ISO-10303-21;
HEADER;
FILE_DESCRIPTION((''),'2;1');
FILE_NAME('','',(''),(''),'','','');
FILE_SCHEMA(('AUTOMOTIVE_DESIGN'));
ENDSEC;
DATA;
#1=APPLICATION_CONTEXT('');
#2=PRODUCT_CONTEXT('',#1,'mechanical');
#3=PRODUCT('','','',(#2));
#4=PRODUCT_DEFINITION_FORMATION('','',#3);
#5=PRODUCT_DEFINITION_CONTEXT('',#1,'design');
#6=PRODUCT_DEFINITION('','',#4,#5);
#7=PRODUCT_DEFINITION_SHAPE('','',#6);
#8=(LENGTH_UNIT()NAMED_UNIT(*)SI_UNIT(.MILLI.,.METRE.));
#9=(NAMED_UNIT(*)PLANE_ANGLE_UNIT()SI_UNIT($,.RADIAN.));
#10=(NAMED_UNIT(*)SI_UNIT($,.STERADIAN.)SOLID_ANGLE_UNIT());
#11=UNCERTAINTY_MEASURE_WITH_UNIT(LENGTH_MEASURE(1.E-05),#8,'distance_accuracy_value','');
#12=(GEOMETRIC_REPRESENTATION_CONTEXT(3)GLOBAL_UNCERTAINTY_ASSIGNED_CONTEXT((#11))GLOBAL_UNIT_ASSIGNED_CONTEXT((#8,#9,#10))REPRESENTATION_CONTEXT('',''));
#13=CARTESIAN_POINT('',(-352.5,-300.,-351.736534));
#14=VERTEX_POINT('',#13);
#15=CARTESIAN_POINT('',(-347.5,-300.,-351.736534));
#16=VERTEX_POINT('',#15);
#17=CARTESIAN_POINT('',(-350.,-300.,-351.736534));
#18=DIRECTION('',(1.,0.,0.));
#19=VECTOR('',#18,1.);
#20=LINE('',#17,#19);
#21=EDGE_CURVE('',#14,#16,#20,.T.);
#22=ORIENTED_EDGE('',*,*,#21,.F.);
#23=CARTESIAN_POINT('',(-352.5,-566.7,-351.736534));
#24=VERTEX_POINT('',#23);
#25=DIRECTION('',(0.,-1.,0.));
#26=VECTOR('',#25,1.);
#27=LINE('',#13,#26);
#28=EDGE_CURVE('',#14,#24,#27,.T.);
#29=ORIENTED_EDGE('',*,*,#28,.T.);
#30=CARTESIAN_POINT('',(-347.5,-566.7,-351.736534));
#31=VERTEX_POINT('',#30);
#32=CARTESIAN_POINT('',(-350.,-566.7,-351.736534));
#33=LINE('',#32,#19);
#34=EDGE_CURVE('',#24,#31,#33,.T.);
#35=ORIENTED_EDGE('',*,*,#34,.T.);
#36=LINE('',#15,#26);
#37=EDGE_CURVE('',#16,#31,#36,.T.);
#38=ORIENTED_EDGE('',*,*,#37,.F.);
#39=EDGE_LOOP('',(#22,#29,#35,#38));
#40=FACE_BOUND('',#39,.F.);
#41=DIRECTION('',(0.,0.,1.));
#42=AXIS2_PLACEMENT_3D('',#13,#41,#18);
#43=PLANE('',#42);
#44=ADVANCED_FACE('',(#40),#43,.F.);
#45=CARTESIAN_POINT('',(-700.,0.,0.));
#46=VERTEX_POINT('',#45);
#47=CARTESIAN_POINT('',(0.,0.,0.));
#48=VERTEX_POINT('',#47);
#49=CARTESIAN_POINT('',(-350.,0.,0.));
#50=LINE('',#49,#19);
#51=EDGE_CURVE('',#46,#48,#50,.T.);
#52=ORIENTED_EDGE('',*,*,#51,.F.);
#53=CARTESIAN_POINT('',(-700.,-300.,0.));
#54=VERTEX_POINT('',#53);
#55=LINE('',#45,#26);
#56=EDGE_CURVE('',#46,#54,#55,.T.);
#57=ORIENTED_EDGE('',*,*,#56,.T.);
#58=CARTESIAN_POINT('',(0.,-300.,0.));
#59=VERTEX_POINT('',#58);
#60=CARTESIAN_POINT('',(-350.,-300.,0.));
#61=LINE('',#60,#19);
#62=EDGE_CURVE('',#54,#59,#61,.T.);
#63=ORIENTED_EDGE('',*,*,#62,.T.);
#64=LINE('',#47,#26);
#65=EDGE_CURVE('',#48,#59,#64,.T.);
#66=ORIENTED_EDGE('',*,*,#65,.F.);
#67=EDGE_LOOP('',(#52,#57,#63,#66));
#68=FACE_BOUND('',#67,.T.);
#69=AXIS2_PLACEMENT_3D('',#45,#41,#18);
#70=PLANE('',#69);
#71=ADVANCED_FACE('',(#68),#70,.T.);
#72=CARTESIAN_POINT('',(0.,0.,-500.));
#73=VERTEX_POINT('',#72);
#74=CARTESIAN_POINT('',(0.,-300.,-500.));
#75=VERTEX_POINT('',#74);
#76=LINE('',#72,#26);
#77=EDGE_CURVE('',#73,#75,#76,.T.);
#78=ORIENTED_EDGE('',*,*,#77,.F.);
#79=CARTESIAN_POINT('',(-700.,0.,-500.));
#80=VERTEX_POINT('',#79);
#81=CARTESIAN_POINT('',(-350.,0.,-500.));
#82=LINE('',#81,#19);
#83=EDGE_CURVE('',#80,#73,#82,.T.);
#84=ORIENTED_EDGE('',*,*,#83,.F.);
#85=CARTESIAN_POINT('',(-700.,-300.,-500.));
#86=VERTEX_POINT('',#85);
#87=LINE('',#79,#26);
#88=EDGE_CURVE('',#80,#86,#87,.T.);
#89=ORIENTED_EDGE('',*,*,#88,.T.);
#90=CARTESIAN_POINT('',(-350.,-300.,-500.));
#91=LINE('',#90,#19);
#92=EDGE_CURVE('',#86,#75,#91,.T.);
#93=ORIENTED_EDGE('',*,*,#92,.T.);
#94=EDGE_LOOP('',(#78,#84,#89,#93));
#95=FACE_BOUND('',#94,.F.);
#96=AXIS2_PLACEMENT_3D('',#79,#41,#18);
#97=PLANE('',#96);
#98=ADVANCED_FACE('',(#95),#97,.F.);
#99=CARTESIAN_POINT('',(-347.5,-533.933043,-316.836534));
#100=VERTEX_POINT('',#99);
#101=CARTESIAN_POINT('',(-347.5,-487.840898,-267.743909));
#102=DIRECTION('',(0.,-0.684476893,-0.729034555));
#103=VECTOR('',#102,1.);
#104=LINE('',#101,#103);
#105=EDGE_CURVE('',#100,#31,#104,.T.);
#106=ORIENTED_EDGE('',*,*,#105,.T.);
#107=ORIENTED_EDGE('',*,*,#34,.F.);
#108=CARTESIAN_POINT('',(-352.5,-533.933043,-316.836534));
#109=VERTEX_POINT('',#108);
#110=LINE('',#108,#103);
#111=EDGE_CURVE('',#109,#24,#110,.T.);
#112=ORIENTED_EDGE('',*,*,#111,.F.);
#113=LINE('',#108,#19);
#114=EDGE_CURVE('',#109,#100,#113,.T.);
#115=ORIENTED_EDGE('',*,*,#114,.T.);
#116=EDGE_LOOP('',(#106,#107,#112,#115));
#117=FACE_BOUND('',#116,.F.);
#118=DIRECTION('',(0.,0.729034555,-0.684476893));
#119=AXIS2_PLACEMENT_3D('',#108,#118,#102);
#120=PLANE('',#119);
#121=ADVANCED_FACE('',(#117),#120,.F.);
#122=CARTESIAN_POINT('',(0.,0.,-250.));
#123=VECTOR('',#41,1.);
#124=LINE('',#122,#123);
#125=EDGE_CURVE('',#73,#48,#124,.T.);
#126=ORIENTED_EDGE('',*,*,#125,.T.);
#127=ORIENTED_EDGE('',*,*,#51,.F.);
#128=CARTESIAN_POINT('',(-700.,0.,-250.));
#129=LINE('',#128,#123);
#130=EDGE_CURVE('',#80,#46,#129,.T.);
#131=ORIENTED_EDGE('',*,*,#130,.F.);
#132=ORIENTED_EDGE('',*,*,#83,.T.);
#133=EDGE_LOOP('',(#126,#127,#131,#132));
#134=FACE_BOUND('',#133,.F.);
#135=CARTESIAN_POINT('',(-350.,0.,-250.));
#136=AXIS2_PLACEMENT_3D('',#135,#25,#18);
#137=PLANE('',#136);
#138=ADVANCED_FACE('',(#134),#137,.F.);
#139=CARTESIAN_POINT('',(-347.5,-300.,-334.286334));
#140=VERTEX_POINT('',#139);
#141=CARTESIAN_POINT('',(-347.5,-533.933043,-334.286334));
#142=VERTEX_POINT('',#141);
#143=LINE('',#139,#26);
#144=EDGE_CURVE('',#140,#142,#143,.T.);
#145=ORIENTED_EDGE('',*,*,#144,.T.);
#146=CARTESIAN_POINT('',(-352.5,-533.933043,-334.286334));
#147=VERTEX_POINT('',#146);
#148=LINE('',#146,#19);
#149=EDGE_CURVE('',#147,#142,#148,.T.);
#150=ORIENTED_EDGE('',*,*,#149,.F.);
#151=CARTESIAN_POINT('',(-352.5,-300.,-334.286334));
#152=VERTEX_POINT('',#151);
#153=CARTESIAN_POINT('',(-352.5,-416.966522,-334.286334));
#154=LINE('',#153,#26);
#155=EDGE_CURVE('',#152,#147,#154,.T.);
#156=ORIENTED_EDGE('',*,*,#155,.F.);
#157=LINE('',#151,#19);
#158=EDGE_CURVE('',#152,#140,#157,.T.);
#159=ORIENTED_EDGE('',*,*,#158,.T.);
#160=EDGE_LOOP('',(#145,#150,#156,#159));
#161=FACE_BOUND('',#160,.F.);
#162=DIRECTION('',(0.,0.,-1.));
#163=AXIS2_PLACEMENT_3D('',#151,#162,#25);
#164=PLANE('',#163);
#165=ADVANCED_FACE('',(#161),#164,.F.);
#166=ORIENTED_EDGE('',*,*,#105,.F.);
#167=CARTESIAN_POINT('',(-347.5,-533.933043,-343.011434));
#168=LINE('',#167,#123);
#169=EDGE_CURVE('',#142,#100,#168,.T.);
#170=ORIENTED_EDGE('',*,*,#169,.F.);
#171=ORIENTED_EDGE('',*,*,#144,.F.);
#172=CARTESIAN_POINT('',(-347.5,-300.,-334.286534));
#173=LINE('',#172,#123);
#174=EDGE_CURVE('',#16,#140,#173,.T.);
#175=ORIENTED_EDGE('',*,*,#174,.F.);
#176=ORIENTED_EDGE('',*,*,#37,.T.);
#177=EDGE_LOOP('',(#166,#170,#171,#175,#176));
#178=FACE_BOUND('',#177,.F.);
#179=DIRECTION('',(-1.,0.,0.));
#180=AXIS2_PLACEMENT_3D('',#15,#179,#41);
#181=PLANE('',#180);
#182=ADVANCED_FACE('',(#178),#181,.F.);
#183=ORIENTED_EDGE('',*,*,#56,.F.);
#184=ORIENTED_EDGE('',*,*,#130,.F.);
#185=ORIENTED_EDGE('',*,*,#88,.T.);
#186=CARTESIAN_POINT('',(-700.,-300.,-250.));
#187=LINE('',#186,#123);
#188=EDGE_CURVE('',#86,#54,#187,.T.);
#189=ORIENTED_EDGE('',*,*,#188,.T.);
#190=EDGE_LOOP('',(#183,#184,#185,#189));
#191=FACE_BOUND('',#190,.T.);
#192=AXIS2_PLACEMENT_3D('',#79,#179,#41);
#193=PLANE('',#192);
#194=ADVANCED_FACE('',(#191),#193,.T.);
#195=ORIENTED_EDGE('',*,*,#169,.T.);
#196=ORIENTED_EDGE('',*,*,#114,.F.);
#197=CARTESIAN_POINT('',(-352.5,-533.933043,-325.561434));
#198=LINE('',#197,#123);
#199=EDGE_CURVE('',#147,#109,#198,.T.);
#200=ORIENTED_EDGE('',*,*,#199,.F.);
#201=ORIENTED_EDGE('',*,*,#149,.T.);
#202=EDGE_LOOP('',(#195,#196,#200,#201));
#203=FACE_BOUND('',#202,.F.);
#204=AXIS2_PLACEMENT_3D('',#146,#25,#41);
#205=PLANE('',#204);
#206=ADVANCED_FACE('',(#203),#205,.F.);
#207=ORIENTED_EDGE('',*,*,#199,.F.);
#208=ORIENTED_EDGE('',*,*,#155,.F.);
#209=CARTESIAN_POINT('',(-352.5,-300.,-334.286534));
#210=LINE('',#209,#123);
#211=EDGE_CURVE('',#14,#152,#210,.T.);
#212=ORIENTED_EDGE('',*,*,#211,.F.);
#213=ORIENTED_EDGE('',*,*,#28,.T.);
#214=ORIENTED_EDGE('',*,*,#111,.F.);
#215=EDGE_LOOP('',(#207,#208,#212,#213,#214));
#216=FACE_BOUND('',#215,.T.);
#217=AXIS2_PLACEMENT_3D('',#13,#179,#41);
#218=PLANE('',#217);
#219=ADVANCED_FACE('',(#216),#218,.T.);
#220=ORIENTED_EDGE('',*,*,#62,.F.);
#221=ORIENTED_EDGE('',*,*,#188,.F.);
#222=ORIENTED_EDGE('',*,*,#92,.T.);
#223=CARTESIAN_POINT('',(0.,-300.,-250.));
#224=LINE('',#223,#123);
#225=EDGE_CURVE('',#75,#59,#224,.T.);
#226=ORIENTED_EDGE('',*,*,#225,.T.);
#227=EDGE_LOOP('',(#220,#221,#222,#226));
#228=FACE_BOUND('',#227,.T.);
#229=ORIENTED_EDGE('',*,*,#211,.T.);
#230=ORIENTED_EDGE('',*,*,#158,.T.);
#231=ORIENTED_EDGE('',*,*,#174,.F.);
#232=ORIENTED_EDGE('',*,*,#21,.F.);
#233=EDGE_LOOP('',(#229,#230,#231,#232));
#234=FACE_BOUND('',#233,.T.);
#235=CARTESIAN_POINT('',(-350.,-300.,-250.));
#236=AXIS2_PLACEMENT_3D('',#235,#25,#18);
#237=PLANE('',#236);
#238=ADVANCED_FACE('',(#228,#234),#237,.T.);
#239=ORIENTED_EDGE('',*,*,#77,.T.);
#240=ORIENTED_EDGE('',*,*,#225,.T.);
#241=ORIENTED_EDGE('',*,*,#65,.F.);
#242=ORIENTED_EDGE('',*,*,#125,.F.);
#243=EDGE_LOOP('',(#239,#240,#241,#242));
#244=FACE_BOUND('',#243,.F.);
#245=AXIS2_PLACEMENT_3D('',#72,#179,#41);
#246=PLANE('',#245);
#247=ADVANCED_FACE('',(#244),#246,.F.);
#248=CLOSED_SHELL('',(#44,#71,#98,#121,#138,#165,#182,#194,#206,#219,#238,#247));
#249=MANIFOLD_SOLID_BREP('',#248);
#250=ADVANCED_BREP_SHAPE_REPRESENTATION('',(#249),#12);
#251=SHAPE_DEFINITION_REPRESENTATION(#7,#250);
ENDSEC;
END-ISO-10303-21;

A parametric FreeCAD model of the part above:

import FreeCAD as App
import Part
import Sketcher


def add_polygon(sketch, points):
    """Adds a closed chain of lines whose ends are joined by coincident constraints."""
    first, n = sketch.GeometryCount, len(points)
    for a, b in zip(points, points[1:] + points[:1]):
        sketch.addGeometry(Part.LineSegment(App.Vector(*a, 0), App.Vector(*b, 0)), False)
    for i in range(n):
        sketch.addConstraint(Sketcher.Constraint("Coincident", first + i, 2, first + (i + 1) % n, 1))

doc = App.newDocument("Part")
body = doc.addObject("PartDesign::Body", "Body")

# Sketch on XZ plane
sketch1 = body.newObject("Sketcher::SketchObject", "Sketch")
sketch1.AttachmentSupport = (doc.getObject("XZ_Plane"), [""])
sketch1.MapMode = "FlatFace"
add_polygon(sketch1, [(-700, 0), (-700, -500), (0, -500), (0, 0)])  # lines 0-3
sketch1.addConstraint(Sketcher.Constraint("Vertical", 0))
sketch1.addConstraint(Sketcher.Constraint("Horizontal", 1))
sketch1.addConstraint(Sketcher.Constraint("Vertical", 2))
sketch1.addConstraint(Sketcher.Constraint("Horizontal", 3))
sketch1.addConstraint(Sketcher.Constraint("Coincident", 2, 2, -1, 1))
sketch1.addConstraint(Sketcher.Constraint("DistanceX", 1, 1, 1, 2, 700.0))
sketch1.addConstraint(Sketcher.Constraint("DistanceY", 0, 2, 0, 1, 500.0))
pad1 = body.newObject("PartDesign::Pad", "Pad")
pad1.Profile = sketch1
pad1.Length = 300

# Sketch on XZ plane
sketch2 = body.newObject("Sketcher::SketchObject", "Sketch001")
sketch2.AttachmentSupport = (doc.getObject("XZ_Plane"), [""])
sketch2.MapMode = "FlatFace"
sketch2.AttachmentOffset = App.Placement(App.Vector(0, 0, 300), App.Rotation())
add_polygon(sketch2, [(-352, -317), (-352, -352), (-348, -352), (-348, -317)])  # lines 0-3
sketch2.addConstraint(Sketcher.Constraint("Vertical", 0))
sketch2.addConstraint(Sketcher.Constraint("Horizontal", 1))
sketch2.addConstraint(Sketcher.Constraint("Vertical", 2))
sketch2.addConstraint(Sketcher.Constraint("Horizontal", 3))
sketch2.addConstraint(Sketcher.Constraint("DistanceX", 1, 1, 1, 2, 5.0))
sketch2.addConstraint(Sketcher.Constraint("DistanceY", 0, 2, 0, 1, 34.9))
sketch2.addConstraint(Sketcher.Constraint("DistanceX", 0, 2, -1, 1, 352.5))
sketch2.addConstraint(Sketcher.Constraint("DistanceY", 0, 2, -1, 1, 351.736534))
pad2 = body.newObject("PartDesign::Pad", "Pad001")
pad2.Profile = sketch2
pad2.Length = 266.7

# Sketch on YZ plane
sketch3 = body.newObject("Sketcher::SketchObject", "Sketch002")
sketch3.AttachmentSupport = (doc.getObject("YZ_Plane"), [""])
sketch3.MapMode = "FlatFace"
sketch3.AttachmentOffset = App.Placement(App.Vector(0, 0, -352.5), App.Rotation())
add_polygon(sketch3, [(-300, -317), (-300, -334), (-534, -334), (-534, -317)])  # lines 0-3
add_polygon(sketch3, [(-534, -317), (-567, -352), (-567, -317)])  # lines 4-6
sketch3.addConstraint(Sketcher.Constraint("Vertical", 0))
sketch3.addConstraint(Sketcher.Constraint("Horizontal", 1))
sketch3.addConstraint(Sketcher.Constraint("Vertical", 2))
sketch3.addConstraint(Sketcher.Constraint("Horizontal", 3))
sketch3.addConstraint(Sketcher.Constraint("Vertical", 5))
sketch3.addConstraint(Sketcher.Constraint("Horizontal", 6))
sketch3.addConstraint(Sketcher.Constraint("Coincident", 6, 2, 2, 2))
sketch3.addConstraint(Sketcher.Constraint("DistanceY", 5, 1, 5, 2, 34.9))
sketch3.addConstraint(Sketcher.Constraint("DistanceX", 0, 2, -1, 1, 300.0))
sketch3.addConstraint(Sketcher.Constraint("DistanceX", 4, 2, -1, 1, 566.7))
sketch3.addConstraint(Sketcher.Constraint("DistanceY", 0, 2, 0, 1, 17.4498))
sketch3.addConstraint(Sketcher.Constraint("Distance", 4, 47.871531))
sketch3.addConstraint(Sketcher.Constraint("DistanceY", 0, 2, -1, 1, 334.286334))
pocket1 = body.newObject("PartDesign::Pocket", "Pocket")
pocket1.Profile = sketch3
pocket1.Length = 25.4
pocket1.Reversed = True

doc.recompute()
